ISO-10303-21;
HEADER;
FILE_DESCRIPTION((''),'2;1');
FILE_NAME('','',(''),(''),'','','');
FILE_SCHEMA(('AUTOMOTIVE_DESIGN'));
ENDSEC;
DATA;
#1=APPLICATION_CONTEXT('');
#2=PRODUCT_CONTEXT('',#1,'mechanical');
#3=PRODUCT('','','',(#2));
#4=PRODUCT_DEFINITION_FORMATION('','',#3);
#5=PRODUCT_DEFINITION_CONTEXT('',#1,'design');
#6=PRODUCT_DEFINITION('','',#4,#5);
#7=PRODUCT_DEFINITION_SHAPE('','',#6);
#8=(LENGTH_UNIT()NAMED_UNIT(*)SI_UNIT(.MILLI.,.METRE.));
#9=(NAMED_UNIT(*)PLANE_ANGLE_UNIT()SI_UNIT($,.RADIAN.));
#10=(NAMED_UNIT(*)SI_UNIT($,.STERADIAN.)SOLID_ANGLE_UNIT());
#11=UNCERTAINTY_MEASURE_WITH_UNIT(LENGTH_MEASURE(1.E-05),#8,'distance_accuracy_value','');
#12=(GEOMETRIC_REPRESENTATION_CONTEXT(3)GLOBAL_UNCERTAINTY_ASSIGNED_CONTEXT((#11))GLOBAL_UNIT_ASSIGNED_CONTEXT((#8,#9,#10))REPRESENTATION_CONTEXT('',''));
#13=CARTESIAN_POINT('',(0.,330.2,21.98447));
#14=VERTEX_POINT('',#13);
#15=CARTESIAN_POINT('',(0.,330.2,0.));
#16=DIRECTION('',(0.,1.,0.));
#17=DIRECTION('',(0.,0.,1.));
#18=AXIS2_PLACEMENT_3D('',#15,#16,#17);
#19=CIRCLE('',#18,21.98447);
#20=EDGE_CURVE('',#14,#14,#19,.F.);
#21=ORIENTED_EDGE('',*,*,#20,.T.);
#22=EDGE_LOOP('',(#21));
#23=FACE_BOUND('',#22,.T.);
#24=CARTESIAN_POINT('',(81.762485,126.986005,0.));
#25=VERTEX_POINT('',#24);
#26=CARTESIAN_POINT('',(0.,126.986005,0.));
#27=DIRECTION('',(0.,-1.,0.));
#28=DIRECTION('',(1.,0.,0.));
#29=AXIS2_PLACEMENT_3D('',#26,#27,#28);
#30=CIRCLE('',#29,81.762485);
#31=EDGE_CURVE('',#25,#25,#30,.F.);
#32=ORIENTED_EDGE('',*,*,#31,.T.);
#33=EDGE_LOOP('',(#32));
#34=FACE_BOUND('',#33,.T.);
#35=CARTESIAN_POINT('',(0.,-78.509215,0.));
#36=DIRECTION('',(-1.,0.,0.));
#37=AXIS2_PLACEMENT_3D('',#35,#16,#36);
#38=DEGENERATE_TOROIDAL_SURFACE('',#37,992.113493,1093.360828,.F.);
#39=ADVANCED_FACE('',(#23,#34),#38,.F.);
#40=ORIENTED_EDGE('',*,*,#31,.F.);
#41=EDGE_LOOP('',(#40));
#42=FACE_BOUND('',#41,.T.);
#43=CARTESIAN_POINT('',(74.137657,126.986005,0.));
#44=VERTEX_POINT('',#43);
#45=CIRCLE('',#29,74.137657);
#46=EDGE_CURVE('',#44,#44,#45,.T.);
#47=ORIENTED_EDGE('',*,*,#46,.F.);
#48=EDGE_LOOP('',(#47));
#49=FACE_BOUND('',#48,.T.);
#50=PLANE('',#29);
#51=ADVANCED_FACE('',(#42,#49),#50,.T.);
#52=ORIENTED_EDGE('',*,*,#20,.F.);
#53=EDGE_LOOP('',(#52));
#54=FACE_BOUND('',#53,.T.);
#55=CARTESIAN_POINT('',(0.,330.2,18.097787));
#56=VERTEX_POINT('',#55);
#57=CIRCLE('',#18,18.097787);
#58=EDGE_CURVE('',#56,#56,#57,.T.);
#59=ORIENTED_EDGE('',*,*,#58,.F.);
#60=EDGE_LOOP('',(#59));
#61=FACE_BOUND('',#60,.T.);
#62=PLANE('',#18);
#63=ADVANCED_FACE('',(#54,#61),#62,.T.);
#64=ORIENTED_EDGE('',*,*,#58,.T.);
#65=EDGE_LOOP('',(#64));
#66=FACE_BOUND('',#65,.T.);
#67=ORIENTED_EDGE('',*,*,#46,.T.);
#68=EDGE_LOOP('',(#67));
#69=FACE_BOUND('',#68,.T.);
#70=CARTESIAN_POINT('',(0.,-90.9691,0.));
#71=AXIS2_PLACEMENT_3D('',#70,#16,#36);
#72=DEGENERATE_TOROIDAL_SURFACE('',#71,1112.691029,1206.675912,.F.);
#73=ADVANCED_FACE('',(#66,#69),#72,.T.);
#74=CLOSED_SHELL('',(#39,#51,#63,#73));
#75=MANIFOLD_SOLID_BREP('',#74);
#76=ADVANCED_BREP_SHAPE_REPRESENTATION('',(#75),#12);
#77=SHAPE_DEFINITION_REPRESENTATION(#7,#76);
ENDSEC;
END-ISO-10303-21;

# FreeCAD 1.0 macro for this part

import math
import FreeCAD as App
import Part
import Sketcher
from FreeCAD import Vector
Q = App.Units.Quantity

doc = App.newDocument("Part")
body = doc.addObject("PartDesign::Body", "Body")

# Sketch on XY plane
sketch1 = body.newObject("Sketcher::SketchObject", "Sketch")
sketch1.AttachmentSupport = (doc.getObject("XY_Plane"), [""])
sketch1.MapMode = "FlatFace"
sketch1.addGeometry([
    Part.LineSegment(Vector(-98.425, 0, 0), Vector(-90.551, 0, 0)),
    Part.ArcOfCircle(Part.Circle(Vector(1112.691029, -90.9691, 0), Vector(0, 0, 1), 1206.675912), math.radians(157.236906), math.radians(175.676474)),
    Part.LineSegment(Vector(0, 375.92, 0), Vector(0, 381, 0)),
    Part.ArcOfCircle(Part.Circle(Vector(992.113493, -78.509215, 0), Vector(0, 0, 1), 1093.360828), math.radians(155.148223), math.radians(175.88231)),
], False)
sketch1.addConstraint([
    Sketcher.Constraint("Coincident", 0, 2, 1, 2),
    Sketcher.Constraint("Coincident", 1, 1, 2, 1),
    Sketcher.Constraint("Coincident", 2, 2, 3, 1),
    Sketcher.Constraint("Coincident", 3, 2, 0, 1),
    Sketcher.Constraint("Horizontal", 0),
    Sketcher.Constraint("Vertical", 2),
    Sketcher.Constraint("PointOnObject", 0, 2, -1),
    Sketcher.Constraint("PointOnObject", 2, 2, -2),
    Sketcher.Constraint("DistanceY", 2, 1, 2, 2, Q("0.2 in")),
    Sketcher.Constraint("DistanceY", -1, 1, 2, 2, Q("15 in")),
    Sketcher.Constraint("DistanceX", 0, 1, 0, 2, Q("0.31 in")),
    Sketcher.Constraint("DistanceX", 0, 2, -1, 1, Q("3.565 in")),
    Sketcher.Constraint("Radius", 3, 1093.360828),
    Sketcher.Constraint("Radius", 1, 1206.675912),
])
revolution = body.newObject("PartDesign::Revolution", "Revolution")
revolution.Profile = sketch1
revolution.ReferenceAxis = (sketch1, ["V_Axis"])
revolution.Angle = 360

# Sketch on XZ plane
sketch2 = body.newObject("Sketcher::SketchObject", "Sketch001")
sketch2.AttachmentSupport = (doc.getObject("XZ_Plane"), [""])
sketch2.MapMode = "FlatFace"
sketch2.addGeometry([
    Part.Circle(Vector(0, 0, 0), Vector(0, 0, 1), 93.1545),
    Part.Circle(Vector(0, 0, 0), Vector(0, 0, 1), 90.4875),
], False)
sketch2.addConstraint([
    Sketcher.Constraint("Coincident", 0, 3, -1, 1),
    Sketcher.Constraint("Coincident", 1, 3, -1, 1),
    Sketcher.Constraint("Diameter", 0, Q("7.335 in")),
    Sketcher.Constraint("Diameter", 1, Q("7.125 in")),
])
pad1 = body.newObject("PartDesign::Pad", "Pad")
pad1.Profile = sketch2
pad1.Length = 40.399995

# Sketch on XZ plane
sketch3 = body.newObject("Sketcher::SketchObject", "Sketch002")
sketch3.AttachmentSupport = (doc.getObject("XZ_Plane"), [""])
sketch3.MapMode = "FlatFace"
sketch3.AttachmentOffset = App.Placement(Vector(0, 0, -15 * 25.4), App.Rotation())
sketch3.addGeometry(Part.Circle(Vector(0, 0, 0), Vector(0, 0, 1), 317.5), False)
sketch3.addConstraint([
    Sketcher.Constraint("Coincident", 0, 3, -1, 1),
    Sketcher.Constraint("Diameter", 0, Q("25 in")),
])
pocket1 = body.newObject("PartDesign::Pocket", "Pocket")
pocket1.Profile = sketch3
pocket1.Length = Q("2 in")
pocket1.Reversed = True

# Sketch on XZ plane
sketch4 = body.newObject("Sketcher::SketchObject", "Sketch003")
sketch4.AttachmentSupport = (doc.getObject("XZ_Plane"), [""])
sketch4.MapMode = "FlatFace"
sketch4.AttachmentOffset = App.Placement(Vector(0, 0, 40.399995), App.Rotation())
sketch4.addGeometry(Part.Circle(Vector(0, 0, 0), Vector(0, 0, 1), 119.216811), False)
sketch4.addConstraint([
    Sketcher.Constraint("Coincident", 0, 3, -1, 1),
    Sketcher.Constraint("Diameter", 0, 238.433621),
])
pocket2 = body.newObject("PartDesign::Pocket", "Pocket001")
pocket2.Profile = sketch4
pocket2.Length = Q("6.59 in")

doc.recompute()
